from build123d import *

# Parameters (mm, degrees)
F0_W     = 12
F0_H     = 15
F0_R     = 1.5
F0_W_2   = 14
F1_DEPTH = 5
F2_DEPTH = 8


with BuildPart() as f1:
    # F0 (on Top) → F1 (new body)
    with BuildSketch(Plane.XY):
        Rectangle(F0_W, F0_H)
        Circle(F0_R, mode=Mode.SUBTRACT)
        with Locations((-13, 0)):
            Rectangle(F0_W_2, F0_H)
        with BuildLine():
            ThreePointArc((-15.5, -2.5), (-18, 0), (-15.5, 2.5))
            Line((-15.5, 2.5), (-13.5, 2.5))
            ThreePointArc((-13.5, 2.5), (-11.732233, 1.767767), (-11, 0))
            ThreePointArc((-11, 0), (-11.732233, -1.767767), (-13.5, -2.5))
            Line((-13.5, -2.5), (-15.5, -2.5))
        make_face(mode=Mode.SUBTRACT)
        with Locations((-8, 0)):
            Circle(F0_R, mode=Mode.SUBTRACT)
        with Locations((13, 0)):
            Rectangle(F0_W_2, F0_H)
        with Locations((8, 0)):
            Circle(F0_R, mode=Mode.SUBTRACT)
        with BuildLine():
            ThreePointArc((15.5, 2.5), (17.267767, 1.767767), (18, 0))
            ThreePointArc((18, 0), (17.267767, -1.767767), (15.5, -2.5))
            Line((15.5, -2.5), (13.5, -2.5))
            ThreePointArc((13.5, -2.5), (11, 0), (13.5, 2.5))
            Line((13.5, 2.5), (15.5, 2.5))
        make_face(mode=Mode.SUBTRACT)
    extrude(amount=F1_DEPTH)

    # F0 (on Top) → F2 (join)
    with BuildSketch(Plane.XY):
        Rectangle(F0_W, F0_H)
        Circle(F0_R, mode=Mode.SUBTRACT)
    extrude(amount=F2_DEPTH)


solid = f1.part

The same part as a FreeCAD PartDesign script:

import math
import FreeCAD as App
import Part
import Sketcher

V = App.Vector
Q = App.Units.Quantity


def add_polygon(sketch, points):
    """Adds a closed chain of lines whose ends are joined by coincident constraints."""
    first, n = sketch.GeometryCount, len(points)
    for a, b in zip(points, points[1:] + points[:1]):
        sketch.addGeometry(Part.LineSegment(App.Vector(*a, 0), App.Vector(*b, 0)), False)
    for i in range(n):
        sketch.addConstraint(Sketcher.Constraint("Coincident", first + i, 2, first + (i + 1) % n, 1))

doc = App.newDocument("Part")
body = doc.addObject("PartDesign::Body", "Body")

# Sketch on XY plane
sketch1 = body.newObject("Sketcher::SketchObject", "Sketch")
sketch1.AttachmentSupport = (doc.getObject("XY_Plane"), [""])
sketch1.MapMode = "FlatFace"
add_polygon(sketch1, [(-20, -7.5), (20, -7.5), (20, 7.5), (-20, 7.5)])  # lines 0-3
sketch1.addGeometry(Part.LineSegment(V(-13.5, -2.5, 0), V(-15.5, -2.5, 0)), False)  # 4
sketch1.addGeometry(Part.ArcOfCircle(Part.Circle(V(-15.5, 0, 0), V(0, 0, 1), 2.5), math.radians(90), math.radians(270)), False)  # 5
sketch1.addGeometry(Part.LineSegment(V(-15.5, 2.5, 0), V(-13.5, 2.5, 0)), False)  # 6
sketch1.addGeometry(Part.ArcOfCircle(Part.Circle(V(-13.5, 0, 0), V(0, 0, 1), 2.5), math.radians(0), math.radians(90)), False)  # 7
sketch1.addGeometry(Part.ArcOfCircle(Part.Circle(V(-13.5, 0, 0), V(0, 0, 1), 2.5), math.radians(-90), math.radians(0)), False)  # 8
sketch1.addGeometry(Part.Circle(V(-8, 0, 0), V(0, 0, 1), 1.5), False)  # 9
sketch1.addGeometry(Part.Circle(V(0, 0, 0), V(0, 0, 1), 1.5), False)  # 10
sketch1.addGeometry(Part.Circle(V(8, 0, 0), V(0, 0, 1), 1.5), False)  # 11
sketch1.addGeometry(Part.LineSegment(V(13.5, 2.5, 0), V(15.5, 2.5, 0)), False)  # 12
sketch1.addGeometry(Part.ArcOfCircle(Part.Circle(V(15.5, 0, 0), V(0, 0, 1), 2.5), math.radians(0), math.radians(90)), False)  # 13
sketch1.addGeometry(Part.ArcOfCircle(Part.Circle(V(15.5, 0, 0), V(0, 0, 1), 2.5), math.radians(-90), math.radians(0)), False)  # 14
sketch1.addGeometry(Part.LineSegment(V(15.5, -2.5, 0), V(13.5, -2.5, 0)), False)  # 15
sketch1.addGeometry(Part.ArcOfCircle(Part.Circle(V(13.5, 0, 0), V(0, 0, 1), 2.5), math.radians(90), math.radians(270)), False)  # 16
sketch1.addConstraint(Sketcher.Constraint("Tangent", 4, 2, 5, 2))
sketch1.addConstraint(Sketcher.Constraint("Tangent", 5, 1, 6, 1))
sketch1.addConstraint(Sketcher.Constraint("Tangent", 6, 2, 7, 2))
sketch1.addConstraint(Sketcher.Constraint("Tangent", 7, 1, 8, 2))
sketch1.addConstraint(Sketcher.Constraint("Tangent", 8, 1, 4, 1))
sketch1.addConstraint(Sketcher.Constraint("Tangent", 12, 2, 13, 2))
sketch1.addConstraint(Sketcher.Constraint("Tangent", 13, 1, 14, 2))
sketch1.addConstraint(Sketcher.Constraint("Tangent", 14, 1, 15, 1))
sketch1.addConstraint(Sketcher.Constraint("Tangent", 15, 2, 16, 2))
sketch1.addConstraint(Sketcher.Constraint("Tangent", 16, 1, 12, 1))
sketch1.addConstraint(Sketcher.Constraint("Horizontal", 0))
sketch1.addConstraint(Sketcher.Constraint("Vertical", 1))
sketch1.addConstraint(Sketcher.Constraint("Horizontal", 2))
sketch1.addConstraint(Sketcher.Constraint("Vertical", 3))
sketch1.addConstraint(Sketcher.Constraint("Horizontal", 4))
sketch1.addConstraint(Sketcher.Constraint("Horizontal", 6))
sketch1.addConstraint(Sketcher.Constraint("Horizontal", 12))
sketch1.addConstraint(Sketcher.Constraint("Horizontal", 15))
sketch1.addConstraint(Sketcher.Constraint("Coincident", 10, 3, -1, 1))
sketch1.addConstraint(Sketcher.Constraint("Equal", 5, 7))
sketch1.addConstraint(Sketcher.Constraint("Equal", 9, 10))
sketch1.addConstraint(Sketcher.Constraint("Equal", 10, 11))
sketch1.addConstraint(Sketcher.Constraint("Equal", 8, 13))
sketch1.addConstraint(Sketcher.Constraint("Equal", 13, 14))
sketch1.addConstraint(Sketcher.Constraint("Symmetric", 9, 3, 11, 3, -1, 1))
sketch1.addConstraint(Sketcher.Constraint("Symmetric", 5, 3, 13, 3, -1, 1))
sketch1.addConstraint(Sketcher.Constraint("Symmetric", 0, 2, 2, 2, -1, 1))
sketch1.addConstraint(Sketcher.Constraint("Symmetric", 7, 3, 16, 3, -2))
sketch1.addConstraint(Sketcher.Constraint("PointOnObject", 9, 3, -1))
sketch1.addConstraint(Sketcher.Constraint("PointOnObject", 7, 1, -1))
sketch1.addConstraint(Sketcher.Constraint("PointOnObject", 13, 1, -1))
sketch1.addConstraint(Sketcher.Constraint("Diameter", 9, Q("3 mm")))
sketch1.addConstraint(Sketcher.Constraint("Radius", 5, Q("2.5 mm")))
sketch1.addConstraint(Sketcher.Constraint("DistanceX", 0, 1, 0, 2, Q("40 mm")))
sketch1.addConstraint(Sketcher.Constraint("DistanceX", 4, 2, 4, 1, Q("2 mm")))
sketch1.addConstraint(Sketcher.Constraint("DistanceY", 1, 1, 1, 2, Q("15 mm")))
sketch1.addConstraint(Sketcher.Constraint("DistanceX", 9, 3, -1, 1, Q("8 mm")))
sketch1.addConstraint(Sketcher.Constraint("DistanceX", 7, 1, -1, 1, Q("11 mm")))
pad1 = body.newObject("PartDesign::Pad", "Pad")
pad1.Profile = sketch1
pad1.Length = 5

# Sketch on XY plane
sketch2 = body.newObject("Sketcher::SketchObject", "Sketch001")
sketch2.AttachmentSupport = (doc.getObject("XY_Plane"), [""])
sketch2.MapMode = "FlatFace"
add_polygon(sketch2, [(-6, 7.5), (-6, -7.5), (6, -7.5), (6, 7.5)])  # lines 0-3
sketch2.addGeometry(Part.Circle(V(0, 0, 0), V(0, 0, 1), 1.5), False)  # 4
sketch2.addConstraint(Sketcher.Constraint("Vertical", 0))
sketch2.addConstraint(Sketcher.Constraint("Horizontal", 1))
sketch2.addConstraint(Sketcher.Constraint("Vertical", 2))
sketch2.addConstraint(Sketcher.Constraint("Horizontal", 3))
sketch2.addConstraint(Sketcher.Constraint("Coincident", 4, 3, -1, 1))
sketch2.addConstraint(Sketcher.Constraint("Symmetric", 0, 2, 2, 2, -1, 1))
sketch2.addConstraint(Sketcher.Constraint("Diameter", 4, Q("3 mm")))
sketch2.addConstraint(Sketcher.Constraint("DistanceX", 1, 1, 1, 2, Q("12 mm")))
sketch2.addConstraint(Sketcher.Constraint("DistanceY", 0, 2, 0, 1, Q("15 mm")))
pad2 = body.newObject("PartDesign::Pad", "Pad001")
pad2.Profile = sketch2
pad2.Length = 8

doc.recompute()
